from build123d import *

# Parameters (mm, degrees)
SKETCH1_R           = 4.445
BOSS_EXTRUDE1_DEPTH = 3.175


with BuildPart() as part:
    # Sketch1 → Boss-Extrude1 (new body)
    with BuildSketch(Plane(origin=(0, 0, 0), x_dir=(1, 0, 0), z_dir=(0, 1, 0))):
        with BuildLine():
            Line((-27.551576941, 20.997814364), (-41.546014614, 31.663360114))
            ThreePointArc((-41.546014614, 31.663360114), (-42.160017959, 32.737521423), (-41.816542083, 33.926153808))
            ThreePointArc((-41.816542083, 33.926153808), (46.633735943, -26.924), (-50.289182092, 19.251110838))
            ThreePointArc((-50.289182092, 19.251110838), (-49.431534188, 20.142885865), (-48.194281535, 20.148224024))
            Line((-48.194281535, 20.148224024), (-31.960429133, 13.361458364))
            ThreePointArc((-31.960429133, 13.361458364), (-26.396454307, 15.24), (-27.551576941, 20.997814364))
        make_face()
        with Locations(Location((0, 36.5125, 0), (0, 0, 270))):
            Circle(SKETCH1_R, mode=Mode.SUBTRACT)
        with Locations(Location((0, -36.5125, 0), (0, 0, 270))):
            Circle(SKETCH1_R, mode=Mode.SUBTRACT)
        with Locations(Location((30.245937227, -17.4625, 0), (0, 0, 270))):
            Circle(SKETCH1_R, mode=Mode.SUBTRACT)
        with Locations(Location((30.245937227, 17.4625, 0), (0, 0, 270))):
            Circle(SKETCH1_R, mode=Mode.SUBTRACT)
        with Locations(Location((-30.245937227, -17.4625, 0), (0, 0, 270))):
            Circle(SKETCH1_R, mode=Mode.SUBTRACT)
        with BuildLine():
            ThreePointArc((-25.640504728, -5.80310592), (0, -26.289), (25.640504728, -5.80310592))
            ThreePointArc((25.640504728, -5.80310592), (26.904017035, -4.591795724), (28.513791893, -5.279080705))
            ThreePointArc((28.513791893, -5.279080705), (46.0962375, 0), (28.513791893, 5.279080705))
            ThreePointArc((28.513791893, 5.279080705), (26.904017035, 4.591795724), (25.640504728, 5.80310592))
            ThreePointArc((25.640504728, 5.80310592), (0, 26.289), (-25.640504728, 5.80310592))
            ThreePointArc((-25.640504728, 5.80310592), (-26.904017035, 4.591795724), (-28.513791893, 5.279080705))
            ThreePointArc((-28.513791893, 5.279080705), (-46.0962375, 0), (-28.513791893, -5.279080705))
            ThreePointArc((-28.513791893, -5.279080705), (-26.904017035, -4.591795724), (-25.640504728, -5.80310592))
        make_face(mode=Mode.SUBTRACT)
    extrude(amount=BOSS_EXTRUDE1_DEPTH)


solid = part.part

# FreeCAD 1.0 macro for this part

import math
import FreeCAD as App
import Part
import Sketcher

V = App.Vector
Q = App.Units.Quantity

doc = App.newDocument("Part")
body = doc.addObject("PartDesign::Body", "Body")

# Sketch on XZ plane
sketch1 = body.newObject("Sketcher::SketchObject", "Sketch")
sketch1.AttachmentSupport = (doc.getObject("XZ_Plane"), [""])
sketch1.MapMode = "FlatFace"
sketch1.addGeometry([
    Part.LineSegment(V(-41.5, -31.7, 0), V(-27.6, -21, 0)),  # 0
    Part.ArcOfCircle(Part.Circle(V(-30.2, -17.5, 0), V(0, 0, 1), 4.4), math.radians(-53), math.radians(113)),  # 1
    Part.LineSegment(V(-32, -13.4, 0), V(-48.2, -20.1, 0)),  # 2
    Part.ArcOfCircle(Part.Circle(V(-48.8, -18.7, 0), V(0, 0, 1), 1.6), math.radians(-159), math.radians(-67)),  # 3
    Part.ArcOfCircle(Part.Circle(V(0, 0, 0), V(0, 0, 1), 53.8), math.radians(-141), math.radians(201)),  # 4
    Part.ArcOfCircle(Part.Circle(V(-40.6, -32.9, 0), V(0, 0, 1), 1.6), math.radians(127), math.radians(219)),  # 5
    Part.Circle(V(30.2, 17.5, 0), V(0, 0, 1), 4.4),  # 6
    Part.Circle(V(0, 36.5, 0), V(0, 0, 1), 4.4),  # 7
    Part.Circle(V(-30.2, 17.5, 0), V(0, 0, 1), 4.4),  # 8
    Part.Circle(V(30.2, -17.5, 0), V(0, 0, 1), 4.4),  # 9
    Part.ArcOfCircle(Part.Circle(V(-27.2, 6.2, 0), V(0, 0, 1), 1.6), math.radians(-147), math.radians(-13)),  # 10
    Part.ArcOfCircle(Part.Circle(V(-36.5, 0, 0), V(0, 0, 1), 9.6), math.radians(33), math.radians(327)),  # 11
    Part.ArcOfCircle(Part.Circle(V(-27.2, -6.2, 0), V(0, 0, 1), 1.6), math.radians(13), math.radians(147)),  # 12
    Part.ArcOfCircle(Part.Circle(V(0, 0, 0), V(0, 0, 1), 26.3), math.radians(-167), math.radians(-13)),  # 13
    Part.ArcOfCircle(Part.Circle(V(27.2, -6.2, 0), V(0, 0, 1), 1.6), math.radians(33), math.radians(167)),  # 14
    Part.ArcOfCircle(Part.Circle(V(36.5, 0, 0), V(0, 0, 1), 9.6), math.radians(-147), math.radians(147)),  # 15
    Part.ArcOfCircle(Part.Circle(V(27.2, 6.2, 0), V(0, 0, 1), 1.6), math.radians(-167), math.radians(-33)),  # 16
    Part.ArcOfCircle(Part.Circle(V(0, 0, 0), V(0, 0, 1), 26.3), math.radians(13), math.radians(167)),  # 17
    Part.Circle(V(0, -36.5, 0), V(0, 0, 1), 4.4),  # 18
], False)
sketch1.addConstraint([
    Sketcher.Constraint("Tangent", 0, 2, 1, 1),
    Sketcher.Constraint("Tangent", 1, 2, 2, 1),
    Sketcher.Constraint("Tangent", 2, 2, 3, 2),
    Sketcher.Constraint("Tangent", 3, 1, 4, 2),
    Sketcher.Constraint("Tangent", 4, 1, 5, 2),
    Sketcher.Constraint("Tangent", 5, 1, 0, 1),
    Sketcher.Constraint("Tangent", 10, 1, 11, 1),
    Sketcher.Constraint("Tangent", 11, 2, 12, 2),
    Sketcher.Constraint("Tangent", 12, 1, 13, 1),
    Sketcher.Constraint("Tangent", 13, 2, 14, 2),
    Sketcher.Constraint("Tangent", 14, 1, 15, 1),
    Sketcher.Constraint("Tangent", 15, 2, 16, 2),
    Sketcher.Constraint("Tangent", 16, 1, 17, 1),
    Sketcher.Constraint("Tangent", 17, 2, 10, 2),
    Sketcher.Constraint("Coincident", 4, 3, -1, 1),
    Sketcher.Constraint("Coincident", 13, 3, -1, 1),
    Sketcher.Constraint("Coincident", 17, 3, -1, 1),
    Sketcher.Constraint("Equal", 3, 5),
    Sketcher.Constraint("Equal", 1, 6),
    Sketcher.Constraint("Equal", 6, 7),
    Sketcher.Constraint("Equal", 7, 8),
    Sketcher.Constraint("Equal", 8, 9),
    Sketcher.Constraint("Equal", 5, 10),
    Sketcher.Constraint("Equal", 10, 12),
    Sketcher.Constraint("Equal", 12, 14),
    Sketcher.Constraint("Equal", 11, 15),
    Sketcher.Constraint("Equal", 14, 16),
    Sketcher.Constraint("Equal", 13, 17),
    Sketcher.Constraint("Equal", 9, 18),
    Sketcher.Constraint("Symmetric", 1, 3, 6, 3, -1, 1),
    Sketcher.Constraint("Symmetric", 8, 3, 9, 3, -1, 1),
    Sketcher.Constraint("Symmetric", 11, 3, 15, 3, -1, 1),
    Sketcher.Constraint("Symmetric", 7, 3, 18, 3, -1, 1),
    Sketcher.Constraint("Symmetric", 6, 3, 8, 3, -2),
    Sketcher.Constraint("PointOnObject", 7, 3, -2),
    Sketcher.Constraint("PointOnObject", 11, 3, -1),
    Sketcher.Constraint("Equal", 0, 2),
    Sketcher.Constraint("Diameter", 6, Q("0.35 in")),
    Sketcher.Constraint("Radius", 4, Q("2.12 in")),
    Sketcher.Constraint("Radius", 3, Q("0.0625 in")),
    Sketcher.Constraint("Radius", 13, Q("1.035 in")),
    Sketcher.Constraint("DistanceY", 6, 3, 7, 3, Q("0.75 in")),
    Sketcher.Constraint("DistanceY", 1, 3, -1, 1, Q("0.6875 in")),
    Sketcher.Constraint("DistanceX", 11, 3, -1, 1, Q("1.4375 in")),
    Sketcher.Constraint("Radius", 11, Q("9.583737 mm")),
    Sketcher.Constraint("Distance", 0, Q("17.595401 mm")),
    Sketcher.Constraint("DistanceX", 3, 3, -1, 1, Q("48.8066 mm")),
])
pad1 = body.newObject("PartDesign::Pad", "Pad")
pad1.Profile = sketch1
pad1.Length = Q("0.125 in")
pad1.Reversed = True

doc.recompute()
